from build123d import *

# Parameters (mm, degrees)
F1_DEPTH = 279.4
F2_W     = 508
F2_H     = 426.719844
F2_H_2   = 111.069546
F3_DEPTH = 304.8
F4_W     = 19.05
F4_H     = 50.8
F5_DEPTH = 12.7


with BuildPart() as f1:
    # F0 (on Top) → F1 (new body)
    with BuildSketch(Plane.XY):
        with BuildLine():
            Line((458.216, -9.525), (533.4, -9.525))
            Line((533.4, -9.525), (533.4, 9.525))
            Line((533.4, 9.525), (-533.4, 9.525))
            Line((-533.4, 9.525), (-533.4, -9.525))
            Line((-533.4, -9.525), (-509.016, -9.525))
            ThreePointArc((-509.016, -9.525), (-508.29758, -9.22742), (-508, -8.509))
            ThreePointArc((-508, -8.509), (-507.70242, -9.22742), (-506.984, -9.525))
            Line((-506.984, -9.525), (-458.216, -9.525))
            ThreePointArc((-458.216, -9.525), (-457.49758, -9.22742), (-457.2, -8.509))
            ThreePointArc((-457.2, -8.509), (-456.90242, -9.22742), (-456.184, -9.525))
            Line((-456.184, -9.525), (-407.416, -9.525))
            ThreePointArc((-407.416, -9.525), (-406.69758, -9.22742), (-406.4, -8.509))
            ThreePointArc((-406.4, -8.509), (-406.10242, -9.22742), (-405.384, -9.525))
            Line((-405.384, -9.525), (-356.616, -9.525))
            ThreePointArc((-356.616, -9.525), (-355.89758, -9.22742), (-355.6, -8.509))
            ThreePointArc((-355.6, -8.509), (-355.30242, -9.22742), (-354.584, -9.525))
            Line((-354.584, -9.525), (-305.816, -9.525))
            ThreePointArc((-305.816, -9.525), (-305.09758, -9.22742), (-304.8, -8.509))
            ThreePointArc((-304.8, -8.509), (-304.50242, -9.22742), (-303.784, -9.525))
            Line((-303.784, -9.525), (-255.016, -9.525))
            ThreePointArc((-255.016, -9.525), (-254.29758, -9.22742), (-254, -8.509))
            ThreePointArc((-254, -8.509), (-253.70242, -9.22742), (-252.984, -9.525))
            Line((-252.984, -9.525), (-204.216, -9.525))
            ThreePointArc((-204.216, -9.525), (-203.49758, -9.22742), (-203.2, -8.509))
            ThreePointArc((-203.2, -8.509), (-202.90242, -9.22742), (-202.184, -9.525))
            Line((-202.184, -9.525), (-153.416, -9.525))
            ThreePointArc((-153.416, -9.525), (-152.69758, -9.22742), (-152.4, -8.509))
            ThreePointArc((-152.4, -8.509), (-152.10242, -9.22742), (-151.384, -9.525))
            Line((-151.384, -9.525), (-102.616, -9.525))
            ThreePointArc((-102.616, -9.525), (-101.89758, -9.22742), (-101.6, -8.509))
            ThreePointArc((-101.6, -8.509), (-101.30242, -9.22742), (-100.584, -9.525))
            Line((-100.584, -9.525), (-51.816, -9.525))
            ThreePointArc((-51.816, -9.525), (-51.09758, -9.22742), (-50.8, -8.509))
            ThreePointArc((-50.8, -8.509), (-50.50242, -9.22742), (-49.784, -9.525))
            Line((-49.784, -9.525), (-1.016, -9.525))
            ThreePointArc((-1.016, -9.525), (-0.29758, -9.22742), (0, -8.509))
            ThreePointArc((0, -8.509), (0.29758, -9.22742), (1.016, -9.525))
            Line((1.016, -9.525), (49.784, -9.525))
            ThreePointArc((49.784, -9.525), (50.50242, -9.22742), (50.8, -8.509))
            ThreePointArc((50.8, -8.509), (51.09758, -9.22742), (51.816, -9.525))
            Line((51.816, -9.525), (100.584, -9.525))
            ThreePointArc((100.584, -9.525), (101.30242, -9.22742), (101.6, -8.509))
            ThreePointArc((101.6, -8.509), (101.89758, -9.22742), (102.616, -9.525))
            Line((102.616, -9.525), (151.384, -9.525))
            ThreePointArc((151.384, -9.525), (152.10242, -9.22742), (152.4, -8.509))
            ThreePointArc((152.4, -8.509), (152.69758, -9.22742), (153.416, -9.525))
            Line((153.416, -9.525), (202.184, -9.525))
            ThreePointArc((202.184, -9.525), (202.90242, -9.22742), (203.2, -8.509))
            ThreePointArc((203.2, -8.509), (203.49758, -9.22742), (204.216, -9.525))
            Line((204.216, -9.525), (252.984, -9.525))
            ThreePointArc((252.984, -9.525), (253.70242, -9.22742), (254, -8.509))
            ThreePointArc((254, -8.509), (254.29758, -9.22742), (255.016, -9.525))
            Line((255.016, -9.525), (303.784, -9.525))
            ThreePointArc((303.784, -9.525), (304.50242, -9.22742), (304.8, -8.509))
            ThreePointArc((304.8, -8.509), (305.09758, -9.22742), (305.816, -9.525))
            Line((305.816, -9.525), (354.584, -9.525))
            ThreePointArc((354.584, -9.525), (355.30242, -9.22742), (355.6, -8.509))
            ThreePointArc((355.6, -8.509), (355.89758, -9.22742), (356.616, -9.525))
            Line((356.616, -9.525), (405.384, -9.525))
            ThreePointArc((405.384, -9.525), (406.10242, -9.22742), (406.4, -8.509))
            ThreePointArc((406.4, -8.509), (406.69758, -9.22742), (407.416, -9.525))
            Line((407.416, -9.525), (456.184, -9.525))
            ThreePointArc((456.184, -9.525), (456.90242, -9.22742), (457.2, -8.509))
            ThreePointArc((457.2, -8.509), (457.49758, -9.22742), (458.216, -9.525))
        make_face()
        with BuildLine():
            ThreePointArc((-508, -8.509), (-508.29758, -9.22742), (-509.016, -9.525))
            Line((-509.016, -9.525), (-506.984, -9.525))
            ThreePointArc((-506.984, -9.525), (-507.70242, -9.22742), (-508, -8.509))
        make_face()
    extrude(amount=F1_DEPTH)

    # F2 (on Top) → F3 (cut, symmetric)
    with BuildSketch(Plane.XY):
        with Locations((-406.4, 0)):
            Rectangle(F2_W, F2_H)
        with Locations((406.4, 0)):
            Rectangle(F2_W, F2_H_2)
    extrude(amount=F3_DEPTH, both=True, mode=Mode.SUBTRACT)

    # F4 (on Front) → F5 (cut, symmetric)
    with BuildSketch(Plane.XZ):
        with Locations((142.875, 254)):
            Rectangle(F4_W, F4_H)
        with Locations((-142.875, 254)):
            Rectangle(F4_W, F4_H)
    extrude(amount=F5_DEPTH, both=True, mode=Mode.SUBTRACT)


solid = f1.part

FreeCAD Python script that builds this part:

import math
import FreeCAD as App
import Part
import Sketcher
from FreeCAD import Vector
Q = App.Units.Quantity


def add_polygon(sketch, points):
    """Adds a closed chain of lines whose ends are joined by coincident constraints."""
    first, n = sketch.GeometryCount, len(points)
    for a, b in zip(points, points[1:] + points[:1]):
        sketch.addGeometry(Part.LineSegment(App.Vector(*a, 0), App.Vector(*b, 0)), False)
    for i in range(n):
        sketch.addConstraint(Sketcher.Constraint("Coincident", first + i, 2, first + (i + 1) % n, 1))

doc = App.newDocument("Part")
params = doc.addObject("Spreadsheet::Sheet", "Params")
for row, (alias, value) in enumerate([
    ("sketch1_width", "42 in"),
    ("sketch1_radius", "0.0400001 in"),
    ("sketch1_height", "0.75 in"),
    ("pad1_length", "11 in"),
    ("sketch2_width", "20 in"),
    ("pocket1_length", "24 in"),
    ("sketch3_height", "2 in"),
    ("sketch3_width", "0.75 in"),
    ("pocket2_length", "1 in"),
], start=1):
    params.set(f"A{row}", alias)
    params.set(f"B{row}", "=" + value)
    params.setAlias(f"B{row}", alias)

body = doc.addObject("PartDesign::Body", "Body")

# Sketch on XY plane
sketch1 = body.newObject("Sketcher::SketchObject", "Sketch")
sketch1.AttachmentSupport = (doc.getObject("XY_Plane"), [""])
sketch1.MapMode = "FlatFace"
sketch1.addGeometry([
    Part.LineSegment(Vector(458.216, -9.525, 0), Vector(533.4, -9.525, 0)),  # 0
    Part.LineSegment(Vector(533.4, -9.525, 0), Vector(533.4, 9.525, 0)),  # 1
    Part.LineSegment(Vector(533.4, 9.525, 0), Vector(-533.4, 9.525, 0)),  # 2
    Part.LineSegment(Vector(-533.4, 9.525, 0), Vector(-533.4, -9.525, 0)),  # 3
    Part.LineSegment(Vector(-533.4, -9.525, 0), Vector(-458.216, -9.525, 0)),  # 4
    Part.ArcOfCircle(Part.Circle(Vector(-458.216002, -8.508998, 0), Vector(0, 0, 1), 1.016002), math.radians(-89.999906), math.radians(-0.000094)),  # 5
    Part.ArcOfCircle(Part.Circle(Vector(-456.183998, -8.508998, 0), Vector(0, 0, 1), 1.016002), math.radians(-179.999906), math.radians(-90.000094)),  # 6
    Part.LineSegment(Vector(-456.184, -9.525, 0), Vector(-407.416, -9.525, 0)),  # 7
    Part.ArcOfCircle(Part.Circle(Vector(-407.416002, -8.508998, 0), Vector(0, 0, 1), 1.016002), math.radians(-89.999906), math.radians(-0.000094)),  # 8
    Part.ArcOfCircle(Part.Circle(Vector(-405.383998, -8.508998, 0), Vector(0, 0, 1), 1.016002), math.radians(-179.999906), math.radians(-90.000094)),  # 9
    Part.LineSegment(Vector(-405.384, -9.525, 0), Vector(-356.616, -9.525, 0)),  # 10
    Part.ArcOfCircle(Part.Circle(Vector(-356.616002, -8.508998, 0), Vector(0, 0, 1), 1.016002), math.radians(-89.999906), math.radians(-0.000094)),  # 11
    Part.ArcOfCircle(Part.Circle(Vector(-354.583998, -8.508998, 0), Vector(0, 0, 1), 1.016002), math.radians(-179.999906), math.radians(-90.000094)),  # 12
    Part.LineSegment(Vector(-354.584, -9.525, 0), Vector(-305.816, -9.525, 0)),  # 13
    Part.ArcOfCircle(Part.Circle(Vector(-305.816002, -8.508998, 0), Vector(0, 0, 1), 1.016002), math.radians(-89.999906), math.radians(-0.000094)),  # 14
    Part.ArcOfCircle(Part.Circle(Vector(-303.783998, -8.508998, 0), Vector(0, 0, 1), 1.016002), math.radians(-179.999906), math.radians(-90.000094)),  # 15
    Part.LineSegment(Vector(-303.784, -9.525, 0), Vector(-255.016, -9.525, 0)),  # 16
    Part.ArcOfCircle(Part.Circle(Vector(-255.016002, -8.508998, 0), Vector(0, 0, 1), 1.016002), math.radians(-89.999906), math.radians(-0.000094)),  # 17
    Part.ArcOfCircle(Part.Circle(Vector(-252.983998, -8.508998, 0), Vector(0, 0, 1), 1.016002), math.radians(-179.999906), math.radians(-90.000094)),  # 18
    Part.LineSegment(Vector(-252.984, -9.525, 0), Vector(-204.216, -9.525, 0)),  # 19
    Part.ArcOfCircle(Part.Circle(Vector(-204.216002, -8.508998, 0), Vector(0, 0, 1), 1.016002), math.radians(-89.999906), math.radians(-0.000094)),  # 20
    Part.ArcOfCircle(Part.Circle(Vector(-202.183998, -8.508998, 0), Vector(0, 0, 1), 1.016002), math.radians(-179.999906), math.radians(-90.000094)),  # 21
    Part.LineSegment(Vector(-202.184, -9.525, 0), Vector(-153.416, -9.525, 0)),  # 22
    Part.ArcOfCircle(Part.Circle(Vector(-153.416002, -8.508998, 0), Vector(0, 0, 1), 1.016002), math.radians(-89.999906), math.radians(-0.000094)),  # 23
    Part.ArcOfCircle(Part.Circle(Vector(-151.383998, -8.508998, 0), Vector(0, 0, 1), 1.016002), math.radians(-179.999906), math.radians(-90.000094)),  # 24
    Part.LineSegment(Vector(-151.384, -9.525, 0), Vector(-102.616, -9.525, 0)),  # 25
    Part.ArcOfCircle(Part.Circle(Vector(-102.616002, -8.508998, 0), Vector(0, 0, 1), 1.016002), math.radians(-89.999906), math.radians(-0.000094)),  # 26
    Part.ArcOfCircle(Part.Circle(Vector(-100.583998, -8.508998, 0), Vector(0, 0, 1), 1.016002), math.radians(-179.999906), math.radians(-90.000094)),  # 27
    Part.LineSegment(Vector(-100.584, -9.525, 0), Vector(-51.816, -9.525, 0)),  # 28
    Part.ArcOfCircle(Part.Circle(Vector(-51.816002, -8.508998, 0), Vector(0, 0, 1), 1.016002), math.radians(-89.999906), math.radians(-0.000094)),  # 29
    Part.ArcOfCircle(Part.Circle(Vector(-49.783998, -8.508998, 0), Vector(0, 0, 1), 1.016002), math.radians(-179.999906), math.radians(-90.000094)),  # 30
    Part.LineSegment(Vector(-49.784, -9.525, 0), Vector(-1.016, -9.525, 0)),  # 31
    Part.ArcOfCircle(Part.Circle(Vector(-1.016002, -8.508998, 0), Vector(0, 0, 1), 1.016002), math.radians(-89.999906), math.radians(-0.000094)),  # 32
    Part.ArcOfCircle(Part.Circle(Vector(1.016002, -8.508998, 0), Vector(0, 0, 1), 1.016002), math.radians(-179.999906), math.radians(-90.000094)),  # 33
    Part.LineSegment(Vector(1.016, -9.525, 0), Vector(49.784, -9.525, 0)),  # 34
    Part.ArcOfCircle(Part.Circle(Vector(49.783998, -8.508998, 0), Vector(0, 0, 1), 1.016002), math.radians(-89.999906), math.radians(-0.000094)),  # 35
    Part.ArcOfCircle(Part.Circle(Vector(51.816002, -8.508998, 0), Vector(0, 0, 1), 1.016002), math.radians(-179.999906), math.radians(-90.000094)),  # 36
    Part.LineSegment(Vector(51.816, -9.525, 0), Vector(100.584, -9.525, 0)),  # 37
    Part.ArcOfCircle(Part.Circle(Vector(100.583998, -8.508998, 0), Vector(0, 0, 1), 1.016002), math.radians(-89.999906), math.radians(-0.000094)),  # 38
    Part.ArcOfCircle(Part.Circle(Vector(102.616002, -8.508998, 0), Vector(0, 0, 1), 1.016002), math.radians(-179.999906), math.radians(-90.000094)),  # 39
    Part.LineSegment(Vector(102.616, -9.525, 0), Vector(151.384, -9.525, 0)),  # 40
    Part.ArcOfCircle(Part.Circle(Vector(151.383998, -8.508998, 0), Vector(0, 0, 1), 1.016002), math.radians(-89.999906), math.radians(-0.000094)),  # 41
    Part.ArcOfCircle(Part.Circle(Vector(153.416002, -8.508998, 0), Vector(0, 0, 1), 1.016002), math.radians(-179.999906), math.radians(-90.000094)),  # 42
    Part.LineSegment(Vector(153.416, -9.525, 0), Vector(202.184, -9.525, 0)),  # 43
    Part.ArcOfCircle(Part.Circle(Vector(202.183998, -8.508998, 0), Vector(0, 0, 1), 1.016002), math.radians(-89.999906), math.radians(-0.000094)),  # 44
    Part.ArcOfCircle(Part.Circle(Vector(204.216002, -8.508998, 0), Vector(0, 0, 1), 1.016002), math.radians(-179.999906), math.radians(-90.000094)),  # 45
    Part.LineSegment(Vector(204.216, -9.525, 0), Vector(252.984, -9.525, 0)),  # 46
    Part.ArcOfCircle(Part.Circle(Vector(252.983998, -8.508998, 0), Vector(0, 0, 1), 1.016002), math.radians(-89.999906), math.radians(-0.000094)),  # 47
    Part.ArcOfCircle(Part.Circle(Vector(255.016002, -8.508998, 0), Vector(0, 0, 1), 1.016002), math.radians(-179.999906), math.radians(-90.000094)),  # 48
    Part.LineSegment(Vector(255.016, -9.525, 0), Vector(303.784, -9.525, 0)),  # 49
    Part.ArcOfCircle(Part.Circle(Vector(303.783998, -8.508998, 0), Vector(0, 0, 1), 1.016002), math.radians(-89.999906), math.radians(-0.000094)),  # 50
    Part.ArcOfCircle(Part.Circle(Vector(305.816002, -8.508998, 0), Vector(0, 0, 1), 1.016002), math.radians(-179.999906), math.radians(-90.000094)),  # 51
    Part.LineSegment(Vector(305.816, -9.525, 0), Vector(354.584, -9.525, 0)),  # 52
    Part.ArcOfCircle(Part.Circle(Vector(354.583998, -8.508998, 0), Vector(0, 0, 1), 1.016002), math.radians(-89.999906), math.radians(-0.000094)),  # 53
    Part.ArcOfCircle(Part.Circle(Vector(356.616002, -8.508998, 0), Vector(0, 0, 1), 1.016002), math.radians(-179.999906), math.radians(-90.000094)),  # 54
    Part.LineSegment(Vector(356.616, -9.525, 0), Vector(405.384, -9.525, 0)),  # 55
    Part.ArcOfCircle(Part.Circle(Vector(405.383998, -8.508998, 0), Vector(0, 0, 1), 1.016002), math.radians(-89.999906), math.radians(-0.000094)),  # 56
    Part.ArcOfCircle(Part.Circle(Vector(407.416002, -8.508998, 0), Vector(0, 0, 1), 1.016002), math.radians(-179.999906), math.radians(-90.000094)),  # 57
    Part.LineSegment(Vector(407.416, -9.525, 0), Vector(456.184, -9.525, 0)),  # 58
    Part.ArcOfCircle(Part.Circle(Vector(456.183998, -8.508998, 0), Vector(0, 0, 1), 1.016002), math.radians(-89.999906), math.radians(-0.000094)),  # 59
    Part.ArcOfCircle(Part.Circle(Vector(458.216002, -8.508998, 0), Vector(0, 0, 1), 1.016002), math.radians(-179.999906), math.radians(-90.000094)),  # 60
], False)
sketch1.addConstraint([
    Sketcher.Constraint("Coincident", 0, 2, 1, 1),
    Sketcher.Constraint("Coincident", 1, 2, 2, 1),
    Sketcher.Constraint("Coincident", 2, 2, 3, 1),
    Sketcher.Constraint("Coincident", 3, 2, 4, 1),
    Sketcher.Constraint("Tangent", 4, 2, 5, 1),
    Sketcher.Constraint("Coincident", 5, 2, 6, 1),
    Sketcher.Constraint("Tangent", 6, 2, 7, 1),
    Sketcher.Constraint("Tangent", 7, 2, 8, 1),
    Sketcher.Constraint("Coincident", 8, 2, 9, 1),
    Sketcher.Constraint("Tangent", 9, 2, 10, 1),
    Sketcher.Constraint("Tangent", 10, 2, 11, 1),
    Sketcher.Constraint("Coincident", 11, 2, 12, 1),
    Sketcher.Constraint("Tangent", 12, 2, 13, 1),
    Sketcher.Constraint("Tangent", 13, 2, 14, 1),
    Sketcher.Constraint("Coincident", 14, 2, 15, 1),
    Sketcher.Constraint("Tangent", 15, 2, 16, 1),
    Sketcher.Constraint("Tangent", 16, 2, 17, 1),
    Sketcher.Constraint("Coincident", 17, 2, 18, 1),
    Sketcher.Constraint("Tangent", 18, 2, 19, 1),
    Sketcher.Constraint("Tangent", 19, 2, 20, 1),
    Sketcher.Constraint("Coincident", 20, 2, 21, 1),
    Sketcher.Constraint("Tangent", 21, 2, 22, 1),
    Sketcher.Constraint("Tangent", 22, 2, 23, 1),
    Sketcher.Constraint("Coincident", 23, 2, 24, 1),
    Sketcher.Constraint("Tangent", 24, 2, 25, 1),
    Sketcher.Constraint("Tangent", 25, 2, 26, 1),
    Sketcher.Constraint("Coincident", 26, 2, 27, 1),
    Sketcher.Constraint("Tangent", 27, 2, 28, 1),
    Sketcher.Constraint("Tangent", 28, 2, 29, 1),
    Sketcher.Constraint("Coincident", 29, 2, 30, 1),
    Sketcher.Constraint("Tangent", 30, 2, 31, 1),
    Sketcher.Constraint("Tangent", 31, 2, 32, 1),
    Sketcher.Constraint("Coincident", 32, 2, 33, 1),
    Sketcher.Constraint("Tangent", 33, 2, 34, 1),
    Sketcher.Constraint("Tangent", 34, 2, 35, 1),
    Sketcher.Constraint("Coincident", 35, 2, 36, 1),
    Sketcher.Constraint("Tangent", 36, 2, 37, 1),
    Sketcher.Constraint("Tangent", 37, 2, 38, 1),
    Sketcher.Constraint("Coincident", 38, 2, 39, 1),
    Sketcher.Constraint("Tangent", 39, 2, 40, 1),
    Sketcher.Constraint("Tangent", 40, 2, 41, 1),
    Sketcher.Constraint("Coincident", 41, 2, 42, 1),
    Sketcher.Constraint("Tangent", 42, 2, 43, 1),
    Sketcher.Constraint("Tangent", 43, 2, 44, 1),
    Sketcher.Constraint("Coincident", 44, 2, 45, 1),
    Sketcher.Constraint("Tangent", 45, 2, 46, 1),
    Sketcher.Constraint("Tangent", 46, 2, 47, 1),
    Sketcher.Constraint("Coincident", 47, 2, 48, 1),
    Sketcher.Constraint("Tangent", 48, 2, 49, 1),
    Sketcher.Constraint("Tangent", 49, 2, 50, 1),
    Sketcher.Constraint("Coincident", 50, 2, 51, 1),
    Sketcher.Constraint("Tangent", 51, 2, 52, 1),
    Sketcher.Constraint("Tangent", 52, 2, 53, 1),
    Sketcher.Constraint("Coincident", 53, 2, 54, 1),
    Sketcher.Constraint("Tangent", 54, 2, 55, 1),
    Sketcher.Constraint("Tangent", 55, 2, 56, 1),
    Sketcher.Constraint("Coincident", 56, 2, 57, 1),
    Sketcher.Constraint("Tangent", 57, 2, 58, 1),
    Sketcher.Constraint("Tangent", 58, 2, 59, 1),
    Sketcher.Constraint("Coincident", 59, 2, 60, 1),
    Sketcher.Constraint("Tangent", 60, 2, 0, 1),
    Sketcher.Constraint("Horizontal", 0),
    Sketcher.Constraint("Vertical", 1),
    Sketcher.Constraint("Horizontal", 2),
    Sketcher.Constraint("Vertical", 3),
    Sketcher.Constraint("Horizontal", 4),
    Sketcher.Constraint("Horizontal", 7),
    Sketcher.Constraint("Horizontal", 10),
    Sketcher.Constraint("Horizontal", 13),
    Sketcher.Constraint("Horizontal", 16),
    Sketcher.Constraint("Horizontal", 19),
    Sketcher.Constraint("Horizontal", 22),
    Sketcher.Constraint("Horizontal", 25),
    Sketcher.Constraint("Horizontal", 28),
    Sketcher.Constraint("Horizontal", 31),
    Sketcher.Constraint("Horizontal", 34),
    Sketcher.Constraint("Horizontal", 37),
    Sketcher.Constraint("Horizontal", 40),
    Sketcher.Constraint("Horizontal", 43),
    Sketcher.Constraint("Horizontal", 46),
    Sketcher.Constraint("Horizontal", 49),
    Sketcher.Constraint("Horizontal", 52),
    Sketcher.Constraint("Horizontal", 55),
    Sketcher.Constraint("Horizontal", 58),
    Sketcher.Constraint("Equal", 5, 6),
    Sketcher.Constraint("Equal", 6, 8),
    Sketcher.Constraint("Equal", 8, 9),
    Sketcher.Constraint("Equal", 9, 11),
    Sketcher.Constraint("Equal", 11, 12),
    Sketcher.Constraint("Equal", 12, 14),
    Sketcher.Constraint("Equal", 14, 15),
    Sketcher.Constraint("Equal", 15, 17),
    Sketcher.Constraint("Equal", 17, 18),
    Sketcher.Constraint("Equal", 18, 20),
    Sketcher.Constraint("Equal", 20, 21),
    Sketcher.Constraint("Equal", 21, 23),
    Sketcher.Constraint("Equal", 23, 24),
    Sketcher.Constraint("Equal", 24, 26),
    Sketcher.Constraint("Equal", 26, 27),
    Sketcher.Constraint("Equal", 27, 29),
    Sketcher.Constraint("Equal", 29, 30),
    Sketcher.Constraint("Equal", 30, 32),
    Sketcher.Constraint("Equal", 32, 33),
    Sketcher.Constraint("Equal", 33, 35),
    Sketcher.Constraint("Equal", 35, 36),
    Sketcher.Constraint("Equal", 36, 38),
    Sketcher.Constraint("Equal", 38, 39),
    Sketcher.Constraint("Equal", 39, 41),
    Sketcher.Constraint("Equal", 41, 42),
    Sketcher.Constraint("Equal", 42, 44),
    Sketcher.Constraint("Equal", 44, 45),
    Sketcher.Constraint("Equal", 45, 47),
    Sketcher.Constraint("Equal", 47, 48),
    Sketcher.Constraint("Equal", 48, 50),
    Sketcher.Constraint("Equal", 50, 51),
    Sketcher.Constraint("Equal", 51, 53),
    Sketcher.Constraint("Equal", 53, 54),
    Sketcher.Constraint("Equal", 54, 56),
    Sketcher.Constraint("Equal", 56, 57),
    Sketcher.Constraint("Equal", 57, 59),
    Sketcher.Constraint("Equal", 59, 60),
    Sketcher.Constraint("Symmetric", 0, 2, 2, 2, -1, 1),
    Sketcher.Constraint("Symmetric", 32, 3, 33, 3, -2),
    Sketcher.Constraint("Symmetric", 29, 3, 36, 3, -2),
    Sketcher.Constraint("Symmetric", 26, 3, 39, 3, -2),
    Sketcher.Constraint("Symmetric", 23, 3, 42, 3, -2),
    Sketcher.Constraint("Symmetric", 20, 3, 45, 3, -2),
    Sketcher.Constraint("Symmetric", 17, 3, 48, 3, -2),
    Sketcher.Constraint("Symmetric", 14, 3, 51, 3, -2),
    Sketcher.Constraint("Symmetric", 11, 3, 54, 3, -2),
    Sketcher.Constraint("Symmetric", 8, 3, 57, 3, -2),
    Sketcher.Constraint("Symmetric", 5, 3, 60, 3, -2),
    Sketcher.Constraint("Horizontal", 5, 3, 6, 3),
    Sketcher.Constraint("Horizontal", 8, 3, 9, 3),
    Sketcher.Constraint("Horizontal", 11, 3, 12, 3),
    Sketcher.Constraint("Horizontal", 14, 3, 15, 3),
    Sketcher.Constraint("Horizontal", 17, 3, 18, 3),
    Sketcher.Constraint("Horizontal", 20, 3, 21, 3),
    Sketcher.Constraint("Horizontal", 23, 3, 24, 3),
    Sketcher.Constraint("Horizontal", 26, 3, 27, 3),
    Sketcher.Constraint("Horizontal", 29, 3, 30, 3),
    Sketcher.Constraint("Horizontal", 60, 3, 5, 2),
    Sketcher.Constraint("Horizontal", 5, 2, 8, 2),
    Sketcher.Constraint("Horizontal", 8, 2, 11, 2),
    Sketcher.Constraint("Horizontal", 11, 2, 14, 2),
    Sketcher.Constraint("Horizontal", 14, 2, 17, 2),
    Sketcher.Constraint("Horizontal", 17, 2, 20, 2),
    Sketcher.Constraint("Horizontal", 20, 2, 23, 2),
    Sketcher.Constraint("Horizontal", 23, 2, 26, 2),
    Sketcher.Constraint("Horizontal", 26, 2, 29, 2),
    Sketcher.Constraint("Horizontal", 29, 2, 32, 2),
    Sketcher.Constraint("Horizontal", 32, 2, 35, 2),
    Sketcher.Constraint("Horizontal", 35, 2, 38, 2),
    Sketcher.Constraint("Horizontal", 38, 2, 41, 2),
    Sketcher.Constraint("Horizontal", 41, 2, 44, 2),
    Sketcher.Constraint("Horizontal", 44, 2, 47, 2),
    Sketcher.Constraint("Horizontal", 47, 2, 50, 2),
    Sketcher.Constraint("Horizontal", 50, 2, 53, 2),
    Sketcher.Constraint("Horizontal", 53, 2, 56, 2),
    Sketcher.Constraint("Horizontal", 56, 2, 59, 2),
    Sketcher.Constraint("Equal", 7, 10),
    Sketcher.Constraint("Equal", 10, 13),
    Sketcher.Constraint("Equal", 13, 16),
    Sketcher.Constraint("Equal", 16, 19),
    Sketcher.Constraint("Equal", 19, 22),
    Sketcher.Constraint("Equal", 22, 25),
    Sketcher.Constraint("Equal", 25, 28),
    Sketcher.Constraint("Equal", 28, 31),
    Sketcher.Constraint("DistanceX", 2, 2, 2, 1, Q("42 in")),
    Sketcher.Constraint("Radius", 5, Q("0.0400001 in")),
    Sketcher.Constraint("DistanceX", 5, 2, -1, 1, Q("18 in")),
    Sketcher.Constraint("DistanceY", 1, 1, 1, 2, Q("0.75 in")),
])
sketch1.setExpression("Constraints[168]", "Params.sketch1_width")
sketch1.setExpression("Constraints[169]", "Params.sketch1_radius")
sketch1.setExpression("Constraints[171]", "Params.sketch1_height")
pad1 = body.newObject("PartDesign::Pad", "Pad")
pad1.Profile = sketch1
pad1.setExpression("Length", "Params.pad1_length")

# Sketch on XY plane
sketch2 = body.newObject("Sketcher::SketchObject", "Sketch001")
sketch2.AttachmentSupport = (doc.getObject("XY_Plane"), [""])
sketch2.MapMode = "FlatFace"
add_polygon(sketch2, [(-660.4, 213.359922), (-660.4, -213.359922), (-152.4, -213.359922), (-152.4, 213.359922)])  # lines 0-3
add_polygon(sketch2, [(152.4, 55.534773), (152.4, -55.534773), (660.4, -55.534773), (660.4, 55.534773)])  # lines 4-7
sketch2.addConstraint([
    Sketcher.Constraint("Vertical", 0),
    Sketcher.Constraint("Horizontal", 1),
    Sketcher.Constraint("Vertical", 2),
    Sketcher.Constraint("Horizontal", 3),
    Sketcher.Constraint("Vertical", 4),
    Sketcher.Constraint("Horizontal", 5),
    Sketcher.Constraint("Vertical", 6),
    Sketcher.Constraint("Horizontal", 7),
    Sketcher.Constraint("Equal", 3, 5),
    Sketcher.Constraint("DistanceX", 1, 1, 1, 2, Q("20 in")),
    Sketcher.Constraint("DistanceX", 0, 2, -1, 1, Q("26 in")),
    Sketcher.Constraint("DistanceX", -1, 1, 4, 2, Q("6 in")),
    Sketcher.Constraint("DistanceY", 0, 2, 0, 1, 426.719844),
    Sketcher.Constraint("DistanceY", 4, 2, 4, 1, 111.069546),
    Sketcher.Constraint("DistanceY", 1, 2, 4, 2, 157.825149),
    Sketcher.Constraint("DistanceY", 0, 2, -1, 1, 213.359922),
])
sketch2.setExpression("Constraints[17]", "Params.sketch2_width")
pocket1 = body.newObject("PartDesign::Pocket", "Pocket")
pocket1.Profile = sketch2
pocket1.setExpression("Length", "Params.pocket1_length")
pocket1.Midplane = True

# Sketch on XZ plane
sketch3 = body.newObject("Sketcher::SketchObject", "Sketch002")
sketch3.AttachmentSupport = (doc.getObject("XZ_Plane"), [""])
sketch3.MapMode = "FlatFace"
add_polygon(sketch3, [(133.35, 279.4), (133.35, 228.6), (152.4, 228.6), (152.4, 279.4)])  # lines 0-3
add_polygon(sketch3, [(-152.4, 279.4), (-152.4, 228.6), (-133.35, 228.6), (-133.35, 279.4)])  # lines 4-7
sketch3.addConstraint([
    Sketcher.Constraint("Vertical", 0),
    Sketcher.Constraint("Horizontal", 1),
    Sketcher.Constraint("Vertical", 2),
    Sketcher.Constraint("Horizontal", 3),
    Sketcher.Constraint("Vertical", 4),
    Sketcher.Constraint("Horizontal", 5),
    Sketcher.Constraint("Vertical", 6),
    Sketcher.Constraint("Horizontal", 7),
    Sketcher.Constraint("Symmetric", 1, 2, 4, 2, -2),
    Sketcher.Constraint("Symmetric", 3, 2, 6, 2, -2),
    Sketcher.Constraint("DistanceY", 0, 2, 0, 1, Q("2 in")),
    Sketcher.Constraint("DistanceY", -1, 1, 0, 2, Q("9 in")),
    Sketcher.Constraint("DistanceX", -1, 1, 1, 2, Q("6 in")),
    Sketcher.Constraint("DistanceX", 1, 1, 1, 2, Q("0.75 in")),
])
sketch3.setExpression("Constraints[18]", "Params.sketch3_height")
sketch3.setExpression("Constraints[21]", "Params.sketch3_width")
pocket2 = body.newObject("PartDesign::Pocket", "Pocket001")
pocket2.Profile = sketch3
pocket2.setExpression("Length", "Params.pocket2_length")
pocket2.Midplane = True

doc.recompute()
